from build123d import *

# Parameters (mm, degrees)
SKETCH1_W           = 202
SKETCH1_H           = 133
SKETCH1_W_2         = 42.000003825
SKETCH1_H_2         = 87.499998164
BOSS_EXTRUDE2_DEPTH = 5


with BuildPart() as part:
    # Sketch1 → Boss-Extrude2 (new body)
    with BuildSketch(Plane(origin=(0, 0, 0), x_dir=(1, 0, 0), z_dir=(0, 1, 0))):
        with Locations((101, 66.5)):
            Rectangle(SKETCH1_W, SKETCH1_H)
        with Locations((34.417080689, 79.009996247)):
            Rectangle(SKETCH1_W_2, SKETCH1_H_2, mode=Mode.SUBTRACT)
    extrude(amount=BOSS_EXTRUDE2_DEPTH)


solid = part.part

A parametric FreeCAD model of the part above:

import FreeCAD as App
import Part
import Sketcher


def add_polygon(sketch, points):
    """Adds a closed chain of lines whose ends are joined by coincident constraints."""
    first, n = sketch.GeometryCount, len(points)
    for a, b in zip(points, points[1:] + points[:1]):
        sketch.addGeometry(Part.LineSegment(App.Vector(*a, 0), App.Vector(*b, 0)), False)
    for i in range(n):
        sketch.addConstraint(Sketcher.Constraint("Coincident", first + i, 2, first + (i + 1) % n, 1))

doc = App.newDocument("Part")
body = doc.addObject("PartDesign::Body", "Body")

sketch1 = body.newObject("Sketcher::SketchObject", "Sketch")
sketch1.AttachmentSupport = (doc.getObject("XZ_Plane"), [""])
sketch1.MapMode = "FlatFace"
add_polygon(sketch1, [(0, -133), (0, 0), (202, 0), (202, -133)])
add_polygon(sketch1, [(55, -35), (13, -35), (13, -123), (55, -123)])
sketch1.addConstraint([
    Sketcher.Constraint("Vertical", 0),
    Sketcher.Constraint("Horizontal", 1),
    Sketcher.Constraint("Vertical", 2),
    Sketcher.Constraint("Horizontal", 3),
    Sketcher.Constraint("Horizontal", 4),
    Sketcher.Constraint("Vertical", 5),
    Sketcher.Constraint("Horizontal", 6),
    Sketcher.Constraint("Vertical", 7),
    Sketcher.Constraint("Coincident", 0, 2, -1, 1),
    Sketcher.Constraint("DistanceX", 1, 1, 1, 2, 202.0),
    Sketcher.Constraint("DistanceY", 0, 1, 0, 2, 133.0),
    Sketcher.Constraint("DistanceY", 5, 2, 5, 1, 87.499998),
    Sketcher.Constraint("DistanceX", 4, 2, 4, 1, 42.000004),
    Sketcher.Constraint("DistanceX", -1, 1, 4, 2, 13.417079),
    Sketcher.Constraint("DistanceY", 4, 2, -1, 1, 35.259997),
])
pad1 = body.newObject("PartDesign::Pad", "Pad")
pad1.Profile = sketch1
pad1.Length = 5
pad1.Reversed = True

doc.recompute()
